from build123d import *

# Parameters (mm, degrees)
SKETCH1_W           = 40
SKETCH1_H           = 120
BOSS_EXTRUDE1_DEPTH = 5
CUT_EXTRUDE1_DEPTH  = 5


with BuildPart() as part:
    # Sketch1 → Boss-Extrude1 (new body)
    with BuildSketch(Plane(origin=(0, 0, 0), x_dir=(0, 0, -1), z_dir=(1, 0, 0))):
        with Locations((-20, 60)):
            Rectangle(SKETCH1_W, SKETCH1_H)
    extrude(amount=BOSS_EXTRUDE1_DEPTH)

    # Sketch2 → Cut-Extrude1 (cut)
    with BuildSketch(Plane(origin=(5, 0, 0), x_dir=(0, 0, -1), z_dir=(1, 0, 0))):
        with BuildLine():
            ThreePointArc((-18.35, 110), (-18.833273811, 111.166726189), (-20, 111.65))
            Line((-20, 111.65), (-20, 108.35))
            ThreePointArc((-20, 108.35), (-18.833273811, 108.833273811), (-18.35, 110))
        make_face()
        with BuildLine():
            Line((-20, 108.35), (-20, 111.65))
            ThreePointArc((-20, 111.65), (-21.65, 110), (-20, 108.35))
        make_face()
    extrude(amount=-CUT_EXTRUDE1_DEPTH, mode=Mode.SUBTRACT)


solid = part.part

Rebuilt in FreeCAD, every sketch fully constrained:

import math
import FreeCAD as App
import Part
import Sketcher
from FreeCAD import Vector
Q = App.Units.Quantity


def add_polygon(sketch, points):
    """Adds a closed chain of lines whose ends are joined by coincident constraints."""
    first, n = sketch.GeometryCount, len(points)
    for a, b in zip(points, points[1:] + points[:1]):
        sketch.addGeometry(Part.LineSegment(App.Vector(*a, 0), App.Vector(*b, 0)), False)
    for i in range(n):
        sketch.addConstraint(Sketcher.Constraint("Coincident", first + i, 2, first + (i + 1) % n, 1))

doc = App.newDocument("Part")
body = doc.addObject("PartDesign::Body", "Body")

sketch1 = body.newObject("Sketcher::SketchObject", "Sketch")
sketch1.AttachmentSupport = (doc.getObject("YZ_Plane"), [""])
sketch1.MapMode = "FlatFace"
add_polygon(sketch1, [(120, 40), (0, 40), (0, 0), (120, 0)])
sketch1.addConstraint([
    Sketcher.Constraint("Horizontal", 0),
    Sketcher.Constraint("Vertical", 1),
    Sketcher.Constraint("Horizontal", 2),
    Sketcher.Constraint("Vertical", 3),
    Sketcher.Constraint("Coincident", 1, 2, -1, 1),
    Sketcher.Constraint("DistanceX", 0, 2, 0, 1, Q("120 mm")),
    Sketcher.Constraint("DistanceY", 1, 2, 1, 1, Q("40 mm")),
])
pad1 = body.newObject("PartDesign::Pad", "Pad")
pad1.Profile = sketch1
pad1.Length = 5

sketch2 = body.newObject("Sketcher::SketchObject", "Sketch001")
sketch2.AttachmentSupport = (doc.getObject("YZ_Plane"), [""])
sketch2.MapMode = "FlatFace"
sketch2.AttachmentOffset = App.Placement(Vector(0, 0, 5), App.Rotation())
sketch2.addGeometry([
    Part.ArcOfCircle(Part.Circle(Vector(110, 20, 0), Vector(0, 0, 1), 1.65), math.radians(-90), math.radians(0)),
    Part.ArcOfCircle(Part.Circle(Vector(110, 20, 0), Vector(0, 0, 1), 1.65), math.radians(0), math.radians(180)),
    Part.ArcOfCircle(Part.Circle(Vector(110, 20, 0), Vector(0, 0, 1), 1.65), math.radians(180), math.radians(270)),
], False)
sketch2.addConstraint([
    Sketcher.Constraint("Tangent", 0, 2, 1, 1),
    Sketcher.Constraint("Tangent", 1, 2, 2, 1),
    Sketcher.Constraint("Tangent", 2, 2, 0, 1),
    Sketcher.Constraint("Horizontal", 2, 3, 0, 2),
    Sketcher.Constraint("Horizontal", 0, 2, 1, 2),
    Sketcher.Constraint("Vertical", 1, 3, 2, 2),
    Sketcher.Constraint("Radius", 0, Q("1.65 mm")),
    Sketcher.Constraint("DistanceX", -1, 1, 0, 3, Q("110 mm")),
    Sketcher.Constraint("DistanceY", -1, 1, 0, 3, Q("20 mm")),
])
pocket1 = body.newObject("PartDesign::Pocket", "Pocket")
pocket1.Profile = sketch2
pocket1.Length = 5

doc.recompute()
